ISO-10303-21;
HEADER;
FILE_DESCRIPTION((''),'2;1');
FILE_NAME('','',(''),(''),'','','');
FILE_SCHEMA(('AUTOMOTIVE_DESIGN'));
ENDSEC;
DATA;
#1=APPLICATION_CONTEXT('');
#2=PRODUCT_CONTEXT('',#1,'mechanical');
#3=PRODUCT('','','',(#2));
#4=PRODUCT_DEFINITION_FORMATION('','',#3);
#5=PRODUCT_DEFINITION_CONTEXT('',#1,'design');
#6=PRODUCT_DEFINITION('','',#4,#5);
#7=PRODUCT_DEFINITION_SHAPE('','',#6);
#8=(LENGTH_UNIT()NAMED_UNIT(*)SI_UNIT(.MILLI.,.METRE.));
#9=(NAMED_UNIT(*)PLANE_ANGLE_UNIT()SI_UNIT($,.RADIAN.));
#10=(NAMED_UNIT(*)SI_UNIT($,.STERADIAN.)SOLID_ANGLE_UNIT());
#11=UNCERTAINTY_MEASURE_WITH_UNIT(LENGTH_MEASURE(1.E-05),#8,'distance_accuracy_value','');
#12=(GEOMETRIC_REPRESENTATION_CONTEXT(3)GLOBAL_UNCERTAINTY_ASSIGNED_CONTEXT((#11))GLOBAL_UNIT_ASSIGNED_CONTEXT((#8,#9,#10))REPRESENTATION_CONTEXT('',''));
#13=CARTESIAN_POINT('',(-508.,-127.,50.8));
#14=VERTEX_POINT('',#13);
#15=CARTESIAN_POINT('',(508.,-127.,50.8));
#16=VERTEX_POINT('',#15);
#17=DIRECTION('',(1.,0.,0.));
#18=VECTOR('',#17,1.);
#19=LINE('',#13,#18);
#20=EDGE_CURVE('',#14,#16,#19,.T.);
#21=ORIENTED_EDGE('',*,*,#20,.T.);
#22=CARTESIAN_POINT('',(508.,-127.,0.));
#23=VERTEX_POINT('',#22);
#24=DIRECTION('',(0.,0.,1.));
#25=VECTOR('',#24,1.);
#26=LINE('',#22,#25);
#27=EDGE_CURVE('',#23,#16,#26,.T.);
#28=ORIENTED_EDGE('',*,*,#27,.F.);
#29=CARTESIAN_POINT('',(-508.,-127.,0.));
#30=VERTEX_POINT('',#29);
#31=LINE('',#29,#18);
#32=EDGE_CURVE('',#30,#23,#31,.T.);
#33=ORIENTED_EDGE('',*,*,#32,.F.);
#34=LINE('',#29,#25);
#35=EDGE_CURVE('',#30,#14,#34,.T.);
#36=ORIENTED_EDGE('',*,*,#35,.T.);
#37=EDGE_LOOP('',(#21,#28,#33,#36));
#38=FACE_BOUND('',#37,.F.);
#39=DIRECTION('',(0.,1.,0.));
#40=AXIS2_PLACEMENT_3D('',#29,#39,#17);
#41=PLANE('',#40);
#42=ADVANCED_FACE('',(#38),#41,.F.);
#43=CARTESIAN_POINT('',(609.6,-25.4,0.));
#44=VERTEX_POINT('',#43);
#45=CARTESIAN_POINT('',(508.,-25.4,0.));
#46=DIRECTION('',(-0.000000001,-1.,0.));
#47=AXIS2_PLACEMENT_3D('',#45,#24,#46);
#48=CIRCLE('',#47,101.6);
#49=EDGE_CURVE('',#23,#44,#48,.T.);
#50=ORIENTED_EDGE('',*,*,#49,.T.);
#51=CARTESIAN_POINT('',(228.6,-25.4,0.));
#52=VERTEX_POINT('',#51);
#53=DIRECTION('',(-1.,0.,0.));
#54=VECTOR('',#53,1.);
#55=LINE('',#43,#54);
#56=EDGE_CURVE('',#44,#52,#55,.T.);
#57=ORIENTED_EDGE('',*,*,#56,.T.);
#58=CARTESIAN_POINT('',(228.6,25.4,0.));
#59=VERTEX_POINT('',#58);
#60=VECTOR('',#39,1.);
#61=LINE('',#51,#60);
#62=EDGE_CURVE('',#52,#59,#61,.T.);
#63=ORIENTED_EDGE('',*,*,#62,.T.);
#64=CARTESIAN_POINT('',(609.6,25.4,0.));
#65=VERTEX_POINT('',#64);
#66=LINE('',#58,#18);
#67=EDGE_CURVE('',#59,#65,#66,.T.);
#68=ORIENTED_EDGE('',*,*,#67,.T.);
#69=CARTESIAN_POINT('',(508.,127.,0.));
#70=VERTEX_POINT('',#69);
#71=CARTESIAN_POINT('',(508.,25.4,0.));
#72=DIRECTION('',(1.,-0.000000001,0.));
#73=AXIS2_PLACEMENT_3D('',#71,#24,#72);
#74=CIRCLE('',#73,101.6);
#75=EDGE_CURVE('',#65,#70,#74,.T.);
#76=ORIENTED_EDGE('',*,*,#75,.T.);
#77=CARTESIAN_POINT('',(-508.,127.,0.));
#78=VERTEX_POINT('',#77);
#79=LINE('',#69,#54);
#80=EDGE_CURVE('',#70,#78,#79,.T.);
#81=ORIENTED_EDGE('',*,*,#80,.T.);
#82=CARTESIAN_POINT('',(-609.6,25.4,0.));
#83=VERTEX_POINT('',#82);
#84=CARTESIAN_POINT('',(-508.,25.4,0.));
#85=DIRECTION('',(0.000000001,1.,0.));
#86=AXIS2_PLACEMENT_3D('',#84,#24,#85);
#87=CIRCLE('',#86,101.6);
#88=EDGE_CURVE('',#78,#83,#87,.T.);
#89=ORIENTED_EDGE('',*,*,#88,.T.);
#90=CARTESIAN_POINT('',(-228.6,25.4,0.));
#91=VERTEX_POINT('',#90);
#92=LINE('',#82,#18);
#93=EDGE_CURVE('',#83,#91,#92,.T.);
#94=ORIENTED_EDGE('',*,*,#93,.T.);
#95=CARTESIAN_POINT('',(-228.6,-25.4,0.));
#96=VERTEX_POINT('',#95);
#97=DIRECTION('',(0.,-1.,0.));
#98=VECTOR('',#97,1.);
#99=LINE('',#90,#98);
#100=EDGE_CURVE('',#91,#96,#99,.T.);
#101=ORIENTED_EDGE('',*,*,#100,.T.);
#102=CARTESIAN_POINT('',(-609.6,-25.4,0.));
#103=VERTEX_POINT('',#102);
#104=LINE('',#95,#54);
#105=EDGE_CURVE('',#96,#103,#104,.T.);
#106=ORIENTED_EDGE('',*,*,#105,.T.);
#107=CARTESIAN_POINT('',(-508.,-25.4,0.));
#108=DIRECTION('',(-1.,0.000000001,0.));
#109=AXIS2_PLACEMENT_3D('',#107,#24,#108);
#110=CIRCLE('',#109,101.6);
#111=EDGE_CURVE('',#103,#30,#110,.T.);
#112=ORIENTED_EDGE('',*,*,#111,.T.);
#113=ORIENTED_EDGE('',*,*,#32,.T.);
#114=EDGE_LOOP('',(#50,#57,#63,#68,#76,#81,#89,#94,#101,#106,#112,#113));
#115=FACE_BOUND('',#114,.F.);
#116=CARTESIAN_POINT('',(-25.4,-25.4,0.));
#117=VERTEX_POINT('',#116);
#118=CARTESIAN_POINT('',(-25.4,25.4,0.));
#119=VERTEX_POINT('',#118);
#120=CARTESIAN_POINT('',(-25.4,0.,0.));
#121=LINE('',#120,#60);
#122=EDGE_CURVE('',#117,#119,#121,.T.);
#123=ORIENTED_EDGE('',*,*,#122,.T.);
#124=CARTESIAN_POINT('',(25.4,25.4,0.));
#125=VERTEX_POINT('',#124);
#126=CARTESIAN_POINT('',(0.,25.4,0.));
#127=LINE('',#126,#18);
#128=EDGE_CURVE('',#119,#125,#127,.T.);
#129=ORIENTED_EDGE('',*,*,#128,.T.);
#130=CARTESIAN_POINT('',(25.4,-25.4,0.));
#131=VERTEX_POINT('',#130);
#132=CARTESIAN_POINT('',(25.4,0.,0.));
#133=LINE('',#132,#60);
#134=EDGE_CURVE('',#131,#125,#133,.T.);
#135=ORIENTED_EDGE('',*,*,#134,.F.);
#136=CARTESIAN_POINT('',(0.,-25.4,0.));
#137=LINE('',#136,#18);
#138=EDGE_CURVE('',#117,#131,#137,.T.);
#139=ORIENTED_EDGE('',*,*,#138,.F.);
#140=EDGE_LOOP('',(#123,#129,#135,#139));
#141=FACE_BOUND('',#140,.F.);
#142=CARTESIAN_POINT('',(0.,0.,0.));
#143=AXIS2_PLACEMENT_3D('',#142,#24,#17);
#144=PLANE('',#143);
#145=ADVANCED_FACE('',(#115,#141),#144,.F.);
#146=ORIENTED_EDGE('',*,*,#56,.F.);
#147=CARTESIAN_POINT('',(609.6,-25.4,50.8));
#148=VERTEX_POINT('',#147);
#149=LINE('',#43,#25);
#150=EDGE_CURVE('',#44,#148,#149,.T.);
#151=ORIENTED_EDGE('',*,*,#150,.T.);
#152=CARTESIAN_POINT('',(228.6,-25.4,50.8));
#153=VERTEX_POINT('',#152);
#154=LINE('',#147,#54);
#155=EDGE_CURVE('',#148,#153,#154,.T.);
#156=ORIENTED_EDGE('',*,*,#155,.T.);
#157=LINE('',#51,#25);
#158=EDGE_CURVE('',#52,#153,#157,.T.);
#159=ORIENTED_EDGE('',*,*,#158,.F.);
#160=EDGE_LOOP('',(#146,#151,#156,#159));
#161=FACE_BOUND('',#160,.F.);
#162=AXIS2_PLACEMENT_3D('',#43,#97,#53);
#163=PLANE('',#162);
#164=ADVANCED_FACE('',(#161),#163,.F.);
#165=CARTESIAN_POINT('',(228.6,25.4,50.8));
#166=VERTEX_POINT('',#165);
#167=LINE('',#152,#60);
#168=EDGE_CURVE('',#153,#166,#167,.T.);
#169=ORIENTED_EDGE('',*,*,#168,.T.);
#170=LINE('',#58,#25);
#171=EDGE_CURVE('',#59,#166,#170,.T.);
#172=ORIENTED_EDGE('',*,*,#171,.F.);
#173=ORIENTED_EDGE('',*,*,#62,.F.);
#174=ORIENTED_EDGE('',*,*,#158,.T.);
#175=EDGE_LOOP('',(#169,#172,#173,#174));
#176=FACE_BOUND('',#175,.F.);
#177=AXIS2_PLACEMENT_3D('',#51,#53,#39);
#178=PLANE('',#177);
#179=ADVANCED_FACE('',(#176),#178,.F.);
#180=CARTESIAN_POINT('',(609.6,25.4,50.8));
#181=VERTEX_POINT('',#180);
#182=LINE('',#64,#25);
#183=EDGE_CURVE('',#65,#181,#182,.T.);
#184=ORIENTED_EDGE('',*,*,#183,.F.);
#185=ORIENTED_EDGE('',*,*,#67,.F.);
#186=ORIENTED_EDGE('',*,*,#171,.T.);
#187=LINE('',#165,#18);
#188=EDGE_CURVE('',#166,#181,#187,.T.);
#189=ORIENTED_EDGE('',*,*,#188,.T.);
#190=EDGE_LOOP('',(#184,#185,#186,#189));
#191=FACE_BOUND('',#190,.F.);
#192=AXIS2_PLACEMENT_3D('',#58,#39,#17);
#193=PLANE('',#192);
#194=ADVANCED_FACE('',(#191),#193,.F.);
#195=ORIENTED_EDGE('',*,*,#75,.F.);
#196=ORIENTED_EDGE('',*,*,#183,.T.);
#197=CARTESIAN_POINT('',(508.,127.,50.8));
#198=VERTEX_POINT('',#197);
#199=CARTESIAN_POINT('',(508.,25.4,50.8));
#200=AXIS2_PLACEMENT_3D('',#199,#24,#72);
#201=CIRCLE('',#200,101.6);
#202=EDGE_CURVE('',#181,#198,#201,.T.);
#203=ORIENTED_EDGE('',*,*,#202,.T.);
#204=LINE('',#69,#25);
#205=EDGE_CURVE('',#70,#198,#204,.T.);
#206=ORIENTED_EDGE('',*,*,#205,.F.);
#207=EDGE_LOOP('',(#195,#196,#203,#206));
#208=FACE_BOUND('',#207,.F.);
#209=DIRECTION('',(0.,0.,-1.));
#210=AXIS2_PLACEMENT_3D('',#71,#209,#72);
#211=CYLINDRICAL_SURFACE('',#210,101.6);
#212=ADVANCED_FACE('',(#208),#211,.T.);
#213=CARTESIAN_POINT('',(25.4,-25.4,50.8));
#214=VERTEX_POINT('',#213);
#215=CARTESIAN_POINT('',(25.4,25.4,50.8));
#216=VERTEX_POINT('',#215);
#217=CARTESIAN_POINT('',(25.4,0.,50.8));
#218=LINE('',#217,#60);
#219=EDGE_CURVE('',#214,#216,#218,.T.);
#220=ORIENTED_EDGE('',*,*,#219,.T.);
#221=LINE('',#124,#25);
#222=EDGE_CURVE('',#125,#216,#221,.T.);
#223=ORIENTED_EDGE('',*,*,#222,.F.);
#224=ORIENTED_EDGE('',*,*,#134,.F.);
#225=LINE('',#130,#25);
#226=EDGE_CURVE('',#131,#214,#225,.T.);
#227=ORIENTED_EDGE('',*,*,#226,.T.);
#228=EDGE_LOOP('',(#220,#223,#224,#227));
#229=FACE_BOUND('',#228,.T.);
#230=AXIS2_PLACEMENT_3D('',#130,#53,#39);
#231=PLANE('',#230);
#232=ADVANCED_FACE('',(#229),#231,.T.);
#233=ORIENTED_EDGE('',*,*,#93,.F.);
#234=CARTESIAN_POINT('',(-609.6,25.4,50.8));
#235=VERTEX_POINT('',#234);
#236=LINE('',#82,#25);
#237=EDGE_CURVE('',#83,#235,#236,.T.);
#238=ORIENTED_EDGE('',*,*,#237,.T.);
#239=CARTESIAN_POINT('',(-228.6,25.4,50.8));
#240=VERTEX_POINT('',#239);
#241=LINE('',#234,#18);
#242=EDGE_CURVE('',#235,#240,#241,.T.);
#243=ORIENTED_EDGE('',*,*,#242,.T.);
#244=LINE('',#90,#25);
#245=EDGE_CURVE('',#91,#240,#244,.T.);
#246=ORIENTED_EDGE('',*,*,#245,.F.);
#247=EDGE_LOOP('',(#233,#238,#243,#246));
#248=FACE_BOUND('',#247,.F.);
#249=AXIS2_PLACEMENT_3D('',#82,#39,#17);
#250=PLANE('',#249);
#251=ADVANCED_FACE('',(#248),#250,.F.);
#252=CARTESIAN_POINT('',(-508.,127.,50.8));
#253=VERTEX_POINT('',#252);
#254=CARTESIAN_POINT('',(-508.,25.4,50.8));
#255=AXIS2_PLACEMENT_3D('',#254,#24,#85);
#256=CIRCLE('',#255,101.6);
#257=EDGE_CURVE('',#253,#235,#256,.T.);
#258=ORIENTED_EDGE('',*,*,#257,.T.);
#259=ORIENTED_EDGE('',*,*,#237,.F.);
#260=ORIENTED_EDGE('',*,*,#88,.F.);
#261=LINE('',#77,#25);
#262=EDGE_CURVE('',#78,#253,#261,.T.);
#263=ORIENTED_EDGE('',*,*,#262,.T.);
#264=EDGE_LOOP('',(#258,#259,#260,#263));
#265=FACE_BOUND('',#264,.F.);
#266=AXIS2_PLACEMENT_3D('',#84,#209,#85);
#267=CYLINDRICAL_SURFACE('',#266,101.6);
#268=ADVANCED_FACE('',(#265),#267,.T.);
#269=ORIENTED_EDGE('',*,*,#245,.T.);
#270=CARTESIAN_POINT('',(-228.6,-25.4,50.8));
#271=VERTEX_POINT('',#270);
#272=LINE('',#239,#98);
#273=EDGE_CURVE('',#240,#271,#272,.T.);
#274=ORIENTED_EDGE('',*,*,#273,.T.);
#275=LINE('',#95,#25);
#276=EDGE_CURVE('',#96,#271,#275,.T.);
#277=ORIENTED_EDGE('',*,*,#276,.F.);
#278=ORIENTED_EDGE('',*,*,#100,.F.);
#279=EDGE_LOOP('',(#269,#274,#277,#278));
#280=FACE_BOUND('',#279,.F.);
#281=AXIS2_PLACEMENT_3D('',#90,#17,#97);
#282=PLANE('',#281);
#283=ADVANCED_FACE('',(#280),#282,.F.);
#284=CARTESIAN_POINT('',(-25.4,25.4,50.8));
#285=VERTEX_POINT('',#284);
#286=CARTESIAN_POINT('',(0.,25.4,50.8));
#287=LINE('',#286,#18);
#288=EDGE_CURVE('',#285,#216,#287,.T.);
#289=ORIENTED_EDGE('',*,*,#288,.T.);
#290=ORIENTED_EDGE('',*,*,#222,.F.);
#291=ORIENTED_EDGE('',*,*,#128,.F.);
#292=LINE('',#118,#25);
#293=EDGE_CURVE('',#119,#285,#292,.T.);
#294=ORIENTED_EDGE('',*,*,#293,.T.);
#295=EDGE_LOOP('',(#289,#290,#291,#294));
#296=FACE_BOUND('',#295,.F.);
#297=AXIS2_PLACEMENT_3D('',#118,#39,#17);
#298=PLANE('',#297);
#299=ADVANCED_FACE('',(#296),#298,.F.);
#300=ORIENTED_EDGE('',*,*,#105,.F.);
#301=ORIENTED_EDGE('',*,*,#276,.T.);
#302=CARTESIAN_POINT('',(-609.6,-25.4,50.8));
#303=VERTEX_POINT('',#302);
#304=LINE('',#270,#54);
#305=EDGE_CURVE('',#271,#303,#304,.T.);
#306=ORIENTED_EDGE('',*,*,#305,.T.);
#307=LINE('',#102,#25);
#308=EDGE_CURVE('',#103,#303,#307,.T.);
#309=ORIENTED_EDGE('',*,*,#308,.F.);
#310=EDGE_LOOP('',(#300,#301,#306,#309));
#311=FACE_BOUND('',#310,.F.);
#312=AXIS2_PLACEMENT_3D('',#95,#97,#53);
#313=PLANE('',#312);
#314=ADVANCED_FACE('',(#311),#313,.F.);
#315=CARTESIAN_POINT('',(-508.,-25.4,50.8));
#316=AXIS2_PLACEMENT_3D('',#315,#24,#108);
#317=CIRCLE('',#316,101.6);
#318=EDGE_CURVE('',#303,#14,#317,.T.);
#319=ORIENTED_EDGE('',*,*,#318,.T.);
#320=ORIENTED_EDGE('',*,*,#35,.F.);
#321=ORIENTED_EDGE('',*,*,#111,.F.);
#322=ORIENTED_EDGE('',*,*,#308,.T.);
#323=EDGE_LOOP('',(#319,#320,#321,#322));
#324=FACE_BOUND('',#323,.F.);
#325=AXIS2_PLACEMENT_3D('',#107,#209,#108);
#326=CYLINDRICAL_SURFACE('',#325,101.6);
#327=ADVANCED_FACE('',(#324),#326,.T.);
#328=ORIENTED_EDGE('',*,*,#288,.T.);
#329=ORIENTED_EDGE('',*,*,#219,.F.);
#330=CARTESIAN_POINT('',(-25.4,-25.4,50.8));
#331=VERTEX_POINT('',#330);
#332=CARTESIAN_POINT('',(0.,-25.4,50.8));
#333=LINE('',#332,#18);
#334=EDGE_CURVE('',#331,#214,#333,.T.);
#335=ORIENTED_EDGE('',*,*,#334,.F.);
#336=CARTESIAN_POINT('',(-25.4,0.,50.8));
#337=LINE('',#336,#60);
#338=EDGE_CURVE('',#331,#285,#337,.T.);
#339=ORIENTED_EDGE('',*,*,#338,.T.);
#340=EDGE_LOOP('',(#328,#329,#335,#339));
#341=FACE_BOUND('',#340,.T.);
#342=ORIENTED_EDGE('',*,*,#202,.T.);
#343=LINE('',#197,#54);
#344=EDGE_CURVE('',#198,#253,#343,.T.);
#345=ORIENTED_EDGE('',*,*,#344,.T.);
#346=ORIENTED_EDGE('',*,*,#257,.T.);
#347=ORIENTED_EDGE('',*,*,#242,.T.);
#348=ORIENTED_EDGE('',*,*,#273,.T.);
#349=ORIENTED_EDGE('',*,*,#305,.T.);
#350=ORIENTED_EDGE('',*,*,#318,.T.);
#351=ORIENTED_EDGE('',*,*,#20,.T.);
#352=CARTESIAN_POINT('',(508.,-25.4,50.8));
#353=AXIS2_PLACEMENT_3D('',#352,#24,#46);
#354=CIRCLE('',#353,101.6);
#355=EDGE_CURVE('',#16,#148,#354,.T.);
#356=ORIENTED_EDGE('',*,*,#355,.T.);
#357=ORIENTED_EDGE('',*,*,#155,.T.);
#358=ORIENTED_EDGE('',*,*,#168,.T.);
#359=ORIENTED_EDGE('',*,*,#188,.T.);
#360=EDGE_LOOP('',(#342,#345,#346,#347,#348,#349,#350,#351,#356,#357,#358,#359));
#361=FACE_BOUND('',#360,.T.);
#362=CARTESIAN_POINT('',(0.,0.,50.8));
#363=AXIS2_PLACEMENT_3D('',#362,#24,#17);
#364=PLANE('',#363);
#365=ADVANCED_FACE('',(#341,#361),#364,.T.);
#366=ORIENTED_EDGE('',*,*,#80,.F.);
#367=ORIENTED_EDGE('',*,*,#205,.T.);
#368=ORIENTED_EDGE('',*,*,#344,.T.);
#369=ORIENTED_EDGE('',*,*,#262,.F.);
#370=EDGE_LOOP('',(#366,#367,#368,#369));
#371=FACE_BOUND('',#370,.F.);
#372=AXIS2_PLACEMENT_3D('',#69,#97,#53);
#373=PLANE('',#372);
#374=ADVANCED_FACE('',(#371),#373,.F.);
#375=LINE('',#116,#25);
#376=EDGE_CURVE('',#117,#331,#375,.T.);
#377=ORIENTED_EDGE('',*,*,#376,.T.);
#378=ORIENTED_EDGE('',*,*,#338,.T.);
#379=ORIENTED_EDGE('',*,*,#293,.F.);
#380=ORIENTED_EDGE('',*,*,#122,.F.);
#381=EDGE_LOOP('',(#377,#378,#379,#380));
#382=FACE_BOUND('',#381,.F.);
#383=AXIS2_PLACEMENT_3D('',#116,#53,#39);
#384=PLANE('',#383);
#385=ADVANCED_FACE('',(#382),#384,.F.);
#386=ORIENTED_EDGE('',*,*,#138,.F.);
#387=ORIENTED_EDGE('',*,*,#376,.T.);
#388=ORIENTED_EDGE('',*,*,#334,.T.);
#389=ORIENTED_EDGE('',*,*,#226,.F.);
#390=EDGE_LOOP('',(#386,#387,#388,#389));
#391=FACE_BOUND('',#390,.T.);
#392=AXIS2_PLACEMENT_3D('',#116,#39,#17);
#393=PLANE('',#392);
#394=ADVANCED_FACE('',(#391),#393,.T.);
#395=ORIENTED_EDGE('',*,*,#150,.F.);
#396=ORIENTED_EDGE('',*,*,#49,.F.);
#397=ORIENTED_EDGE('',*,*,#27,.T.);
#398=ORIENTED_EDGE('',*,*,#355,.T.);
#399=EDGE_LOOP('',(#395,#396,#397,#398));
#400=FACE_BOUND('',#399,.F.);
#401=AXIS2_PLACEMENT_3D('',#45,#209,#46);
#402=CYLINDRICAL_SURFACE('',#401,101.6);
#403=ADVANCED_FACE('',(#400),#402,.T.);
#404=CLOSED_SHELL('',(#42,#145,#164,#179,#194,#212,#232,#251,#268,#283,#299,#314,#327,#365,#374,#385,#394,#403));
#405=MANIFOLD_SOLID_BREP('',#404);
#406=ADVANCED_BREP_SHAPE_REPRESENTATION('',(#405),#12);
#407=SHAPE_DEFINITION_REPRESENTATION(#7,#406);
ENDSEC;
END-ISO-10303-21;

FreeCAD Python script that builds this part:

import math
import FreeCAD as App
import Part
import Sketcher
Q = App.Units.Quantity


def add_polygon(sketch, points):
    """Adds a closed chain of lines whose ends are joined by coincident constraints."""
    first, n = sketch.GeometryCount, len(points)
    for a, b in zip(points, points[1:] + points[:1]):
        sketch.addGeometry(Part.LineSegment(App.Vector(*a, 0), App.Vector(*b, 0)), False)
    for i in range(n):
        sketch.addConstraint(Sketcher.Constraint("Coincident", first + i, 2, first + (i + 1) % n, 1))

doc = App.newDocument("Part")
body = doc.addObject("PartDesign::Body", "Body")

# Sketch on XY plane
sketch1 = doc.addObject("Sketcher::SketchObject", "Sketch")
body.addObject(sketch1)
sketch1.AttachmentSupport = (doc.XY_Plane, [""])
sketch1.MapMode = "FlatFace"
sketch1.addGeometry(Part.ArcOfCircle(Part.Circle(App.Vector(508, 25.4, 0), App.Vector(0, 0, 1), 101.6), math.radians(0), math.radians(90)), False)  # 0
sketch1.addGeometry(Part.LineSegment(App.Vector(508, 127, 0), App.Vector(-508, 127, 0)), False)  # 1
sketch1.addGeometry(Part.ArcOfCircle(Part.Circle(App.Vector(-508, 25.4, 0), App.Vector(0, 0, 1), 101.6), math.radians(90), math.radians(180)), False)  # 2
sketch1.addGeometry(Part.LineSegment(App.Vector(-609.6, 25.4, 0), App.Vector(-228.6, 25.4, 0)), False)  # 3
sketch1.addGeometry(Part.LineSegment(App.Vector(-228.6, 25.4, 0), App.Vector(-228.6, -25.4, 0)), False)  # 4
sketch1.addGeometry(Part.LineSegment(App.Vector(-228.6, -25.4, 0), App.Vector(-609.6, -25.4, 0)), False)  # 5
sketch1.addGeometry(Part.ArcOfCircle(Part.Circle(App.Vector(-508, -25.4, 0), App.Vector(0, 0, 1), 101.6), math.radians(180), math.radians(270)), False)  # 6
sketch1.addGeometry(Part.LineSegment(App.Vector(-508, -127, 0), App.Vector(508, -127, 0)), False)  # 7
sketch1.addGeometry(Part.ArcOfCircle(Part.Circle(App.Vector(508, -25.4, 0), App.Vector(0, 0, 1), 101.6), math.radians(-90), math.radians(0)), False)  # 8
sketch1.addGeometry(Part.LineSegment(App.Vector(609.6, -25.4, 0), App.Vector(228.6, -25.4, 0)), False)  # 9
sketch1.addGeometry(Part.LineSegment(App.Vector(228.6, -25.4, 0), App.Vector(228.6, 25.4, 0)), False)  # 10
sketch1.addGeometry(Part.LineSegment(App.Vector(228.6, 25.4, 0), App.Vector(609.6, 25.4, 0)), False)  # 11
add_polygon(sketch1, [(25.4, -25.4), (-25.4, -25.4), (-25.4, 25.4), (25.4, 25.4)])  # lines 12-15
sketch1.addConstraint(Sketcher.Constraint("Tangent", 0, 2, 1, 1))
sketch1.addConstraint(Sketcher.Constraint("Tangent", 1, 2, 2, 1))
sketch1.addConstraint(Sketcher.Constraint("Coincident", 2, 2, 3, 1))
sketch1.addConstraint(Sketcher.Constraint("Coincident", 3, 2, 4, 1))
sketch1.addConstraint(Sketcher.Constraint("Coincident", 4, 2, 5, 1))
sketch1.addConstraint(Sketcher.Constraint("Coincident", 5, 2, 6, 1))
sketch1.addConstraint(Sketcher.Constraint("Tangent", 6, 2, 7, 1))
sketch1.addConstraint(Sketcher.Constraint("Tangent", 7, 2, 8, 1))
sketch1.addConstraint(Sketcher.Constraint("Coincident", 8, 2, 9, 1))
sketch1.addConstraint(Sketcher.Constraint("Coincident", 9, 2, 10, 1))
sketch1.addConstraint(Sketcher.Constraint("Coincident", 10, 2, 11, 1))
sketch1.addConstraint(Sketcher.Constraint("Coincident", 11, 2, 0, 1))
sketch1.addConstraint(Sketcher.Constraint("Horizontal", 1))
sketch1.addConstraint(Sketcher.Constraint("Horizontal", 3))
sketch1.addConstraint(Sketcher.Constraint("Vertical", 4))
sketch1.addConstraint(Sketcher.Constraint("Horizontal", 5))
sketch1.addConstraint(Sketcher.Constraint("Horizontal", 7))
sketch1.addConstraint(Sketcher.Constraint("Horizontal", 9))
sketch1.addConstraint(Sketcher.Constraint("Vertical", 10))
sketch1.addConstraint(Sketcher.Constraint("Horizontal", 11))
sketch1.addConstraint(Sketcher.Constraint("Horizontal", 12))
sketch1.addConstraint(Sketcher.Constraint("Vertical", 13))
sketch1.addConstraint(Sketcher.Constraint("Horizontal", 14))
sketch1.addConstraint(Sketcher.Constraint("Vertical", 15))
sketch1.addConstraint(Sketcher.Constraint("Equal", 0, 2))
sketch1.addConstraint(Sketcher.Constraint("Equal", 2, 6))
sketch1.addConstraint(Sketcher.Constraint("Equal", 6, 8))
sketch1.addConstraint(Sketcher.Constraint("Symmetric", 0, 3, 6, 3, -1, 1))
sketch1.addConstraint(Sketcher.Constraint("Symmetric", 2, 2, 8, 2, -1, 1))
sketch1.addConstraint(Sketcher.Constraint("Symmetric", 4, 2, 10, 2, -1, 1))
sketch1.addConstraint(Sketcher.Constraint("Symmetric", 12, 2, 14, 2, -1, 1))
sketch1.addConstraint(Sketcher.Constraint("Symmetric", 5, 2, 8, 2, -2))
sketch1.addConstraint(Sketcher.Constraint("Horizontal", 0, 3, 2, 2))
sketch1.addConstraint(Sketcher.Constraint("Horizontal", 9, 2, 12, 2))
sketch1.addConstraint(Sketcher.Constraint("Equal", 14, 4))
sketch1.addConstraint(Sketcher.Constraint("Radius", 0, Q("4 in")))
sketch1.addConstraint(Sketcher.Constraint("DistanceX", 1, 2, 1, 1, Q("40 in")))
sketch1.addConstraint(Sketcher.Constraint("DistanceX", 3, 1, 3, 2, Q("15 in")))
sketch1.addConstraint(Sketcher.Constraint("DistanceX", 12, 2, 12, 1, Q("2 in")))
pad1 = doc.addObject("PartDesign::Pad", "Pad")
body.addObject(pad1)
pad1.Profile = sketch1
pad1.Length = Q("2 in")

doc.recompute()
